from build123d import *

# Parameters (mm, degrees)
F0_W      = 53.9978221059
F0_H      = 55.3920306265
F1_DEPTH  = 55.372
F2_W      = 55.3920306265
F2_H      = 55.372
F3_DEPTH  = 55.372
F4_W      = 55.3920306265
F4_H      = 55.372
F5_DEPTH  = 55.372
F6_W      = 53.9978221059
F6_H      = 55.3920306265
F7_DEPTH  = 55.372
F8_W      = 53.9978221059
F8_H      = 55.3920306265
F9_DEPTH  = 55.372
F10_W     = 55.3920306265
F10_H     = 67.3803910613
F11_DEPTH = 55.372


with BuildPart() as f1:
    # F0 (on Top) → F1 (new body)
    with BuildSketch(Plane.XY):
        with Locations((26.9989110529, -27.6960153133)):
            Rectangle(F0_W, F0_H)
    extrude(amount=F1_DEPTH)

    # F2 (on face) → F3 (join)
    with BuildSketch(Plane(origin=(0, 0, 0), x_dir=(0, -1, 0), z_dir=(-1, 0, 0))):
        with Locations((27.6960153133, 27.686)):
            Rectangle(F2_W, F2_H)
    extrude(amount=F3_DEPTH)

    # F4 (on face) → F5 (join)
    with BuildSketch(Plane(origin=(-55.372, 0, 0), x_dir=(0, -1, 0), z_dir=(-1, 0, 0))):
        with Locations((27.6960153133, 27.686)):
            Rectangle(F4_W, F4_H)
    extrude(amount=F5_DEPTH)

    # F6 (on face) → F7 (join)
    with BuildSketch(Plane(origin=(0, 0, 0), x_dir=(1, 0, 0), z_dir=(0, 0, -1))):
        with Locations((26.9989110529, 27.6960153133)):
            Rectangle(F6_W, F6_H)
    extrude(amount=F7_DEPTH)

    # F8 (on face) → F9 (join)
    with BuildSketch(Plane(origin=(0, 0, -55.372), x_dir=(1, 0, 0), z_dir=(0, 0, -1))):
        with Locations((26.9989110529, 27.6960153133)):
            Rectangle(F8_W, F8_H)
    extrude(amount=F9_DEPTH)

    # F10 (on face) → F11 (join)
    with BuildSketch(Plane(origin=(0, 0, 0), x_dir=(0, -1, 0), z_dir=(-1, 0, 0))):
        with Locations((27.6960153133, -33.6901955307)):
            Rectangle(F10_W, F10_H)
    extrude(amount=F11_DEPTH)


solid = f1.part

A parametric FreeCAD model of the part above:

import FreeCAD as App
import Part
import Sketcher

V = App.Vector
Q = App.Units.Quantity

doc = App.newDocument("Part")
params = doc.addObject("Spreadsheet::Sheet", "Params")
for row, (alias, value) in enumerate([
    ("pad1_length", "2.18 in"),
    ("sketch2_height", "2.18 in"),
    ("pad2_length", "2.18 in"),
    ("sketch3_height", "2.18 in"),
    ("pad3_length", "2.18 in"),
    ("pad4_length", "2.18 in"),
    ("pad5_length", "2.18 in"),
    ("pad6_length", "2.18 in"),
], start=1):
    params.set(f"A{row}", alias)
    params.set(f"B{row}", "=" + value)
    params.setAlias(f"B{row}", alias)

body = doc.addObject("PartDesign::Body", "Body")

# Sketch on XY plane
sketch1 = doc.addObject("Sketcher::SketchObject", "Sketch")
body.addObject(sketch1)
sketch1.AttachmentSupport = (doc.XY_Plane, [""])
sketch1.MapMode = "FlatFace"
sketch1.addGeometry(Part.LineSegment(V(0, 0, 0), V(0, -55, 0)), False)
sketch1.addGeometry(Part.LineSegment(V(0, -55, 0), V(54, -55, 0)), False)
sketch1.addGeometry(Part.LineSegment(V(54, -55, 0), V(54, 0, 0)), False)
sketch1.addGeometry(Part.LineSegment(V(54, 0, 0), V(0, 0, 0)), False)
sketch1.addConstraint(Sketcher.Constraint("Coincident", 0, 2, 1, 1))
sketch1.addConstraint(Sketcher.Constraint("Coincident", 1, 2, 2, 1))
sketch1.addConstraint(Sketcher.Constraint("Coincident", 2, 2, 3, 1))
sketch1.addConstraint(Sketcher.Constraint("Coincident", 3, 2, 0, 1))
sketch1.addConstraint(Sketcher.Constraint("Vertical", 0))
sketch1.addConstraint(Sketcher.Constraint("Horizontal", 1))
sketch1.addConstraint(Sketcher.Constraint("Vertical", 2))
sketch1.addConstraint(Sketcher.Constraint("Horizontal", 3))
sketch1.addConstraint(Sketcher.Constraint("Coincident", 3, 2, -1, 1))
sketch1.addConstraint(Sketcher.Constraint("DistanceY", 0, 2, 0, 1, Q("55.392031 mm")))
sketch1.addConstraint(Sketcher.Constraint("DistanceX", 1, 1, 1, 2, Q("53.997822 mm")))
pad1 = doc.addObject("PartDesign::Pad", "Pad")
body.addObject(pad1)
pad1.Profile = sketch1
pad1.setExpression("Length", "Params.pad1_length")

# Sketch on YZ plane
sketch2 = doc.addObject("Sketcher::SketchObject", "Sketch001")
body.addObject(sketch2)
sketch2.AttachmentSupport = (doc.YZ_Plane, [""])
sketch2.MapMode = "FlatFace"
sketch2.addGeometry(Part.LineSegment(V(0, 55, 0), V(0, 0, 0)), False)
sketch2.addGeometry(Part.LineSegment(V(0, 0, 0), V(-55, 0, 0)), False)
sketch2.addGeometry(Part.LineSegment(V(-55, 0, 0), V(-55, 55, 0)), False)
sketch2.addGeometry(Part.LineSegment(V(-55, 55, 0), V(0, 55, 0)), False)
sketch2.addConstraint(Sketcher.Constraint("Coincident", 0, 2, 1, 1))
sketch2.addConstraint(Sketcher.Constraint("Coincident", 1, 2, 2, 1))
sketch2.addConstraint(Sketcher.Constraint("Coincident", 2, 2, 3, 1))
sketch2.addConstraint(Sketcher.Constraint("Coincident", 3, 2, 0, 1))
sketch2.addConstraint(Sketcher.Constraint("Vertical", 0))
sketch2.addConstraint(Sketcher.Constraint("Horizontal", 1))
sketch2.addConstraint(Sketcher.Constraint("Vertical", 2))
sketch2.addConstraint(Sketcher.Constraint("Horizontal", 3))
sketch2.addConstraint(Sketcher.Constraint("Coincident", 0, 2, -1, 1))
sketch2.addConstraint(Sketcher.Constraint("DistanceY", 0, 2, 0, 1, Q("2.18 in")))
sketch2.addConstraint(Sketcher.Constraint("DistanceX", 1, 2, 1, 1, Q("55.392031 mm")))
sketch2.setExpression("Constraints[9]", "Params.sketch2_height")
pad2 = doc.addObject("PartDesign::Pad", "Pad001")
body.addObject(pad2)
pad2.Profile = sketch2
pad2.setExpression("Length", "Params.pad2_length")
pad2.Reversed = True

# Sketch on YZ plane
sketch3 = doc.addObject("Sketcher::SketchObject", "Sketch002")
body.addObject(sketch3)
sketch3.AttachmentSupport = (doc.YZ_Plane, [""])
sketch3.MapMode = "FlatFace"
sketch3.AttachmentOffset = App.Placement(V(0, 0, -2.18 * 25.4), App.Rotation())
sketch3.addGeometry(Part.LineSegment(V(0, 55, 0), V(0, 0, 0)), False)
sketch3.addGeometry(Part.LineSegment(V(0, 0, 0), V(-55, 0, 0)), False)
sketch3.addGeometry(Part.LineSegment(V(-55, 0, 0), V(-55, 55, 0)), False)
sketch3.addGeometry(Part.LineSegment(V(-55, 55, 0), V(0, 55, 0)), False)
sketch3.addConstraint(Sketcher.Constraint("Coincident", 0, 2, 1, 1))
sketch3.addConstraint(Sketcher.Constraint("Coincident", 1, 2, 2, 1))
sketch3.addConstraint(Sketcher.Constraint("Coincident", 2, 2, 3, 1))
sketch3.addConstraint(Sketcher.Constraint("Coincident", 3, 2, 0, 1))
sketch3.addConstraint(Sketcher.Constraint("Vertical", 0))
sketch3.addConstraint(Sketcher.Constraint("Horizontal", 1))
sketch3.addConstraint(Sketcher.Constraint("Vertical", 2))
sketch3.addConstraint(Sketcher.Constraint("Horizontal", 3))
sketch3.addConstraint(Sketcher.Constraint("Coincident", 0, 2, -1, 1))
sketch3.addConstraint(Sketcher.Constraint("DistanceY", 0, 2, 0, 1, Q("2.18 in")))
sketch3.addConstraint(Sketcher.Constraint("DistanceX", 1, 2, 1, 1, Q("55.392031 mm")))
sketch3.setExpression("Constraints[9]", "Params.sketch3_height")
pad3 = doc.addObject("PartDesign::Pad", "Pad002")
body.addObject(pad3)
pad3.Profile = sketch3
pad3.setExpression("Length", "Params.pad3_length")
pad3.Reversed = True

# Sketch on XY plane
sketch4 = doc.addObject("Sketcher::SketchObject", "Sketch003")
body.addObject(sketch4)
sketch4.AttachmentSupport = (doc.XY_Plane, [""])
sketch4.MapMode = "FlatFace"
sketch4.addGeometry(Part.LineSegment(V(0, -55, 0), V(0, 0, 0)), False)
sketch4.addGeometry(Part.LineSegment(V(0, 0, 0), V(54, 0, 0)), False)
sketch4.addGeometry(Part.LineSegment(V(54, 0, 0), V(54, -55, 0)), False)
sketch4.addGeometry(Part.LineSegment(V(54, -55, 0), V(0, -55, 0)), False)
sketch4.addConstraint(Sketcher.Constraint("Coincident", 0, 2, 1, 1))
sketch4.addConstraint(Sketcher.Constraint("Coincident", 1, 2, 2, 1))
sketch4.addConstraint(Sketcher.Constraint("Coincident", 2, 2, 3, 1))
sketch4.addConstraint(Sketcher.Constraint("Coincident", 3, 2, 0, 1))
sketch4.addConstraint(Sketcher.Constraint("Vertical", 0))
sketch4.addConstraint(Sketcher.Constraint("Horizontal", 1))
sketch4.addConstraint(Sketcher.Constraint("Vertical", 2))
sketch4.addConstraint(Sketcher.Constraint("Horizontal", 3))
sketch4.addConstraint(Sketcher.Constraint("Coincident", 0, 2, -1, 1))
sketch4.addConstraint(Sketcher.Constraint("DistanceY", 0, 1, 0, 2, Q("55.392031 mm")))
sketch4.addConstraint(Sketcher.Constraint("DistanceX", 1, 1, 1, 2, Q("53.997822 mm")))
pad4 = doc.addObject("PartDesign::Pad", "Pad003")
body.addObject(pad4)
pad4.Profile = sketch4
pad4.setExpression("Length", "Params.pad4_length")
pad4.Reversed = True

# Sketch on XY plane
sketch5 = doc.addObject("Sketcher::SketchObject", "Sketch004")
body.addObject(sketch5)
sketch5.AttachmentSupport = (doc.XY_Plane, [""])
sketch5.MapMode = "FlatFace"
sketch5.AttachmentOffset = App.Placement(V(0, 0, -2.18 * 25.4), App.Rotation())
sketch5.addGeometry(Part.LineSegment(V(0, -55, 0), V(0, 0, 0)), False)
sketch5.addGeometry(Part.LineSegment(V(0, 0, 0), V(54, 0, 0)), False)
sketch5.addGeometry(Part.LineSegment(V(54, 0, 0), V(54, -55, 0)), False)
sketch5.addGeometry(Part.LineSegment(V(54, -55, 0), V(0, -55, 0)), False)
sketch5.addConstraint(Sketcher.Constraint("Coincident", 0, 2, 1, 1))
sketch5.addConstraint(Sketcher.Constraint("Coincident", 1, 2, 2, 1))
sketch5.addConstraint(Sketcher.Constraint("Coincident", 2, 2, 3, 1))
sketch5.addConstraint(Sketcher.Constraint("Coincident", 3, 2, 0, 1))
sketch5.addConstraint(Sketcher.Constraint("Vertical", 0))
sketch5.addConstraint(Sketcher.Constraint("Horizontal", 1))
sketch5.addConstraint(Sketcher.Constraint("Vertical", 2))
sketch5.addConstraint(Sketcher.Constraint("Horizontal", 3))
sketch5.addConstraint(Sketcher.Constraint("Coincident", 0, 2, -1, 1))
sketch5.addConstraint(Sketcher.Constraint("DistanceY", 0, 1, 0, 2, Q("55.392031 mm")))
sketch5.addConstraint(Sketcher.Constraint("DistanceX", 1, 1, 1, 2, Q("53.997822 mm")))
pad5 = doc.addObject("PartDesign::Pad", "Pad004")
body.addObject(pad5)
pad5.Profile = sketch5
pad5.setExpression("Length", "Params.pad5_length")
pad5.Reversed = True

# Sketch on YZ plane
sketch6 = doc.addObject("Sketcher::SketchObject", "Sketch005")
body.addObject(sketch6)
sketch6.AttachmentSupport = (doc.YZ_Plane, [""])
sketch6.MapMode = "FlatFace"
sketch6.addGeometry(Part.LineSegment(V(0, 0, 0), V(0, -67, 0)), False)
sketch6.addGeometry(Part.LineSegment(V(0, -67, 0), V(-55, -67, 0)), False)
sketch6.addGeometry(Part.LineSegment(V(-55, -67, 0), V(-55, 0, 0)), False)
sketch6.addGeometry(Part.LineSegment(V(-55, 0, 0), V(0, 0, 0)), False)
sketch6.addConstraint(Sketcher.Constraint("Coincident", 0, 2, 1, 1))
sketch6.addConstraint(Sketcher.Constraint("Coincident", 1, 2, 2, 1))
sketch6.addConstraint(Sketcher.Constraint("Coincident", 2, 2, 3, 1))
sketch6.addConstraint(Sketcher.Constraint("Coincident", 3, 2, 0, 1))
sketch6.addConstraint(Sketcher.Constraint("Vertical", 0))
sketch6.addConstraint(Sketcher.Constraint("Horizontal", 1))
sketch6.addConstraint(Sketcher.Constraint("Vertical", 2))
sketch6.addConstraint(Sketcher.Constraint("Horizontal", 3))
sketch6.addConstraint(Sketcher.Constraint("Coincident", 3, 2, -1, 1))
sketch6.addConstraint(Sketcher.Constraint("DistanceX", 1, 2, 1, 1, Q("55.392031 mm")))
sketch6.addConstraint(Sketcher.Constraint("DistanceY", 0, 2, 0, 1, Q("67.380391 mm")))
pad6 = doc.addObject("PartDesign::Pad", "Pad005")
body.addObject(pad6)
pad6.Profile = sketch6
pad6.setExpression("Length", "Params.pad6_length")
pad6.Reversed = True

doc.recompute()
